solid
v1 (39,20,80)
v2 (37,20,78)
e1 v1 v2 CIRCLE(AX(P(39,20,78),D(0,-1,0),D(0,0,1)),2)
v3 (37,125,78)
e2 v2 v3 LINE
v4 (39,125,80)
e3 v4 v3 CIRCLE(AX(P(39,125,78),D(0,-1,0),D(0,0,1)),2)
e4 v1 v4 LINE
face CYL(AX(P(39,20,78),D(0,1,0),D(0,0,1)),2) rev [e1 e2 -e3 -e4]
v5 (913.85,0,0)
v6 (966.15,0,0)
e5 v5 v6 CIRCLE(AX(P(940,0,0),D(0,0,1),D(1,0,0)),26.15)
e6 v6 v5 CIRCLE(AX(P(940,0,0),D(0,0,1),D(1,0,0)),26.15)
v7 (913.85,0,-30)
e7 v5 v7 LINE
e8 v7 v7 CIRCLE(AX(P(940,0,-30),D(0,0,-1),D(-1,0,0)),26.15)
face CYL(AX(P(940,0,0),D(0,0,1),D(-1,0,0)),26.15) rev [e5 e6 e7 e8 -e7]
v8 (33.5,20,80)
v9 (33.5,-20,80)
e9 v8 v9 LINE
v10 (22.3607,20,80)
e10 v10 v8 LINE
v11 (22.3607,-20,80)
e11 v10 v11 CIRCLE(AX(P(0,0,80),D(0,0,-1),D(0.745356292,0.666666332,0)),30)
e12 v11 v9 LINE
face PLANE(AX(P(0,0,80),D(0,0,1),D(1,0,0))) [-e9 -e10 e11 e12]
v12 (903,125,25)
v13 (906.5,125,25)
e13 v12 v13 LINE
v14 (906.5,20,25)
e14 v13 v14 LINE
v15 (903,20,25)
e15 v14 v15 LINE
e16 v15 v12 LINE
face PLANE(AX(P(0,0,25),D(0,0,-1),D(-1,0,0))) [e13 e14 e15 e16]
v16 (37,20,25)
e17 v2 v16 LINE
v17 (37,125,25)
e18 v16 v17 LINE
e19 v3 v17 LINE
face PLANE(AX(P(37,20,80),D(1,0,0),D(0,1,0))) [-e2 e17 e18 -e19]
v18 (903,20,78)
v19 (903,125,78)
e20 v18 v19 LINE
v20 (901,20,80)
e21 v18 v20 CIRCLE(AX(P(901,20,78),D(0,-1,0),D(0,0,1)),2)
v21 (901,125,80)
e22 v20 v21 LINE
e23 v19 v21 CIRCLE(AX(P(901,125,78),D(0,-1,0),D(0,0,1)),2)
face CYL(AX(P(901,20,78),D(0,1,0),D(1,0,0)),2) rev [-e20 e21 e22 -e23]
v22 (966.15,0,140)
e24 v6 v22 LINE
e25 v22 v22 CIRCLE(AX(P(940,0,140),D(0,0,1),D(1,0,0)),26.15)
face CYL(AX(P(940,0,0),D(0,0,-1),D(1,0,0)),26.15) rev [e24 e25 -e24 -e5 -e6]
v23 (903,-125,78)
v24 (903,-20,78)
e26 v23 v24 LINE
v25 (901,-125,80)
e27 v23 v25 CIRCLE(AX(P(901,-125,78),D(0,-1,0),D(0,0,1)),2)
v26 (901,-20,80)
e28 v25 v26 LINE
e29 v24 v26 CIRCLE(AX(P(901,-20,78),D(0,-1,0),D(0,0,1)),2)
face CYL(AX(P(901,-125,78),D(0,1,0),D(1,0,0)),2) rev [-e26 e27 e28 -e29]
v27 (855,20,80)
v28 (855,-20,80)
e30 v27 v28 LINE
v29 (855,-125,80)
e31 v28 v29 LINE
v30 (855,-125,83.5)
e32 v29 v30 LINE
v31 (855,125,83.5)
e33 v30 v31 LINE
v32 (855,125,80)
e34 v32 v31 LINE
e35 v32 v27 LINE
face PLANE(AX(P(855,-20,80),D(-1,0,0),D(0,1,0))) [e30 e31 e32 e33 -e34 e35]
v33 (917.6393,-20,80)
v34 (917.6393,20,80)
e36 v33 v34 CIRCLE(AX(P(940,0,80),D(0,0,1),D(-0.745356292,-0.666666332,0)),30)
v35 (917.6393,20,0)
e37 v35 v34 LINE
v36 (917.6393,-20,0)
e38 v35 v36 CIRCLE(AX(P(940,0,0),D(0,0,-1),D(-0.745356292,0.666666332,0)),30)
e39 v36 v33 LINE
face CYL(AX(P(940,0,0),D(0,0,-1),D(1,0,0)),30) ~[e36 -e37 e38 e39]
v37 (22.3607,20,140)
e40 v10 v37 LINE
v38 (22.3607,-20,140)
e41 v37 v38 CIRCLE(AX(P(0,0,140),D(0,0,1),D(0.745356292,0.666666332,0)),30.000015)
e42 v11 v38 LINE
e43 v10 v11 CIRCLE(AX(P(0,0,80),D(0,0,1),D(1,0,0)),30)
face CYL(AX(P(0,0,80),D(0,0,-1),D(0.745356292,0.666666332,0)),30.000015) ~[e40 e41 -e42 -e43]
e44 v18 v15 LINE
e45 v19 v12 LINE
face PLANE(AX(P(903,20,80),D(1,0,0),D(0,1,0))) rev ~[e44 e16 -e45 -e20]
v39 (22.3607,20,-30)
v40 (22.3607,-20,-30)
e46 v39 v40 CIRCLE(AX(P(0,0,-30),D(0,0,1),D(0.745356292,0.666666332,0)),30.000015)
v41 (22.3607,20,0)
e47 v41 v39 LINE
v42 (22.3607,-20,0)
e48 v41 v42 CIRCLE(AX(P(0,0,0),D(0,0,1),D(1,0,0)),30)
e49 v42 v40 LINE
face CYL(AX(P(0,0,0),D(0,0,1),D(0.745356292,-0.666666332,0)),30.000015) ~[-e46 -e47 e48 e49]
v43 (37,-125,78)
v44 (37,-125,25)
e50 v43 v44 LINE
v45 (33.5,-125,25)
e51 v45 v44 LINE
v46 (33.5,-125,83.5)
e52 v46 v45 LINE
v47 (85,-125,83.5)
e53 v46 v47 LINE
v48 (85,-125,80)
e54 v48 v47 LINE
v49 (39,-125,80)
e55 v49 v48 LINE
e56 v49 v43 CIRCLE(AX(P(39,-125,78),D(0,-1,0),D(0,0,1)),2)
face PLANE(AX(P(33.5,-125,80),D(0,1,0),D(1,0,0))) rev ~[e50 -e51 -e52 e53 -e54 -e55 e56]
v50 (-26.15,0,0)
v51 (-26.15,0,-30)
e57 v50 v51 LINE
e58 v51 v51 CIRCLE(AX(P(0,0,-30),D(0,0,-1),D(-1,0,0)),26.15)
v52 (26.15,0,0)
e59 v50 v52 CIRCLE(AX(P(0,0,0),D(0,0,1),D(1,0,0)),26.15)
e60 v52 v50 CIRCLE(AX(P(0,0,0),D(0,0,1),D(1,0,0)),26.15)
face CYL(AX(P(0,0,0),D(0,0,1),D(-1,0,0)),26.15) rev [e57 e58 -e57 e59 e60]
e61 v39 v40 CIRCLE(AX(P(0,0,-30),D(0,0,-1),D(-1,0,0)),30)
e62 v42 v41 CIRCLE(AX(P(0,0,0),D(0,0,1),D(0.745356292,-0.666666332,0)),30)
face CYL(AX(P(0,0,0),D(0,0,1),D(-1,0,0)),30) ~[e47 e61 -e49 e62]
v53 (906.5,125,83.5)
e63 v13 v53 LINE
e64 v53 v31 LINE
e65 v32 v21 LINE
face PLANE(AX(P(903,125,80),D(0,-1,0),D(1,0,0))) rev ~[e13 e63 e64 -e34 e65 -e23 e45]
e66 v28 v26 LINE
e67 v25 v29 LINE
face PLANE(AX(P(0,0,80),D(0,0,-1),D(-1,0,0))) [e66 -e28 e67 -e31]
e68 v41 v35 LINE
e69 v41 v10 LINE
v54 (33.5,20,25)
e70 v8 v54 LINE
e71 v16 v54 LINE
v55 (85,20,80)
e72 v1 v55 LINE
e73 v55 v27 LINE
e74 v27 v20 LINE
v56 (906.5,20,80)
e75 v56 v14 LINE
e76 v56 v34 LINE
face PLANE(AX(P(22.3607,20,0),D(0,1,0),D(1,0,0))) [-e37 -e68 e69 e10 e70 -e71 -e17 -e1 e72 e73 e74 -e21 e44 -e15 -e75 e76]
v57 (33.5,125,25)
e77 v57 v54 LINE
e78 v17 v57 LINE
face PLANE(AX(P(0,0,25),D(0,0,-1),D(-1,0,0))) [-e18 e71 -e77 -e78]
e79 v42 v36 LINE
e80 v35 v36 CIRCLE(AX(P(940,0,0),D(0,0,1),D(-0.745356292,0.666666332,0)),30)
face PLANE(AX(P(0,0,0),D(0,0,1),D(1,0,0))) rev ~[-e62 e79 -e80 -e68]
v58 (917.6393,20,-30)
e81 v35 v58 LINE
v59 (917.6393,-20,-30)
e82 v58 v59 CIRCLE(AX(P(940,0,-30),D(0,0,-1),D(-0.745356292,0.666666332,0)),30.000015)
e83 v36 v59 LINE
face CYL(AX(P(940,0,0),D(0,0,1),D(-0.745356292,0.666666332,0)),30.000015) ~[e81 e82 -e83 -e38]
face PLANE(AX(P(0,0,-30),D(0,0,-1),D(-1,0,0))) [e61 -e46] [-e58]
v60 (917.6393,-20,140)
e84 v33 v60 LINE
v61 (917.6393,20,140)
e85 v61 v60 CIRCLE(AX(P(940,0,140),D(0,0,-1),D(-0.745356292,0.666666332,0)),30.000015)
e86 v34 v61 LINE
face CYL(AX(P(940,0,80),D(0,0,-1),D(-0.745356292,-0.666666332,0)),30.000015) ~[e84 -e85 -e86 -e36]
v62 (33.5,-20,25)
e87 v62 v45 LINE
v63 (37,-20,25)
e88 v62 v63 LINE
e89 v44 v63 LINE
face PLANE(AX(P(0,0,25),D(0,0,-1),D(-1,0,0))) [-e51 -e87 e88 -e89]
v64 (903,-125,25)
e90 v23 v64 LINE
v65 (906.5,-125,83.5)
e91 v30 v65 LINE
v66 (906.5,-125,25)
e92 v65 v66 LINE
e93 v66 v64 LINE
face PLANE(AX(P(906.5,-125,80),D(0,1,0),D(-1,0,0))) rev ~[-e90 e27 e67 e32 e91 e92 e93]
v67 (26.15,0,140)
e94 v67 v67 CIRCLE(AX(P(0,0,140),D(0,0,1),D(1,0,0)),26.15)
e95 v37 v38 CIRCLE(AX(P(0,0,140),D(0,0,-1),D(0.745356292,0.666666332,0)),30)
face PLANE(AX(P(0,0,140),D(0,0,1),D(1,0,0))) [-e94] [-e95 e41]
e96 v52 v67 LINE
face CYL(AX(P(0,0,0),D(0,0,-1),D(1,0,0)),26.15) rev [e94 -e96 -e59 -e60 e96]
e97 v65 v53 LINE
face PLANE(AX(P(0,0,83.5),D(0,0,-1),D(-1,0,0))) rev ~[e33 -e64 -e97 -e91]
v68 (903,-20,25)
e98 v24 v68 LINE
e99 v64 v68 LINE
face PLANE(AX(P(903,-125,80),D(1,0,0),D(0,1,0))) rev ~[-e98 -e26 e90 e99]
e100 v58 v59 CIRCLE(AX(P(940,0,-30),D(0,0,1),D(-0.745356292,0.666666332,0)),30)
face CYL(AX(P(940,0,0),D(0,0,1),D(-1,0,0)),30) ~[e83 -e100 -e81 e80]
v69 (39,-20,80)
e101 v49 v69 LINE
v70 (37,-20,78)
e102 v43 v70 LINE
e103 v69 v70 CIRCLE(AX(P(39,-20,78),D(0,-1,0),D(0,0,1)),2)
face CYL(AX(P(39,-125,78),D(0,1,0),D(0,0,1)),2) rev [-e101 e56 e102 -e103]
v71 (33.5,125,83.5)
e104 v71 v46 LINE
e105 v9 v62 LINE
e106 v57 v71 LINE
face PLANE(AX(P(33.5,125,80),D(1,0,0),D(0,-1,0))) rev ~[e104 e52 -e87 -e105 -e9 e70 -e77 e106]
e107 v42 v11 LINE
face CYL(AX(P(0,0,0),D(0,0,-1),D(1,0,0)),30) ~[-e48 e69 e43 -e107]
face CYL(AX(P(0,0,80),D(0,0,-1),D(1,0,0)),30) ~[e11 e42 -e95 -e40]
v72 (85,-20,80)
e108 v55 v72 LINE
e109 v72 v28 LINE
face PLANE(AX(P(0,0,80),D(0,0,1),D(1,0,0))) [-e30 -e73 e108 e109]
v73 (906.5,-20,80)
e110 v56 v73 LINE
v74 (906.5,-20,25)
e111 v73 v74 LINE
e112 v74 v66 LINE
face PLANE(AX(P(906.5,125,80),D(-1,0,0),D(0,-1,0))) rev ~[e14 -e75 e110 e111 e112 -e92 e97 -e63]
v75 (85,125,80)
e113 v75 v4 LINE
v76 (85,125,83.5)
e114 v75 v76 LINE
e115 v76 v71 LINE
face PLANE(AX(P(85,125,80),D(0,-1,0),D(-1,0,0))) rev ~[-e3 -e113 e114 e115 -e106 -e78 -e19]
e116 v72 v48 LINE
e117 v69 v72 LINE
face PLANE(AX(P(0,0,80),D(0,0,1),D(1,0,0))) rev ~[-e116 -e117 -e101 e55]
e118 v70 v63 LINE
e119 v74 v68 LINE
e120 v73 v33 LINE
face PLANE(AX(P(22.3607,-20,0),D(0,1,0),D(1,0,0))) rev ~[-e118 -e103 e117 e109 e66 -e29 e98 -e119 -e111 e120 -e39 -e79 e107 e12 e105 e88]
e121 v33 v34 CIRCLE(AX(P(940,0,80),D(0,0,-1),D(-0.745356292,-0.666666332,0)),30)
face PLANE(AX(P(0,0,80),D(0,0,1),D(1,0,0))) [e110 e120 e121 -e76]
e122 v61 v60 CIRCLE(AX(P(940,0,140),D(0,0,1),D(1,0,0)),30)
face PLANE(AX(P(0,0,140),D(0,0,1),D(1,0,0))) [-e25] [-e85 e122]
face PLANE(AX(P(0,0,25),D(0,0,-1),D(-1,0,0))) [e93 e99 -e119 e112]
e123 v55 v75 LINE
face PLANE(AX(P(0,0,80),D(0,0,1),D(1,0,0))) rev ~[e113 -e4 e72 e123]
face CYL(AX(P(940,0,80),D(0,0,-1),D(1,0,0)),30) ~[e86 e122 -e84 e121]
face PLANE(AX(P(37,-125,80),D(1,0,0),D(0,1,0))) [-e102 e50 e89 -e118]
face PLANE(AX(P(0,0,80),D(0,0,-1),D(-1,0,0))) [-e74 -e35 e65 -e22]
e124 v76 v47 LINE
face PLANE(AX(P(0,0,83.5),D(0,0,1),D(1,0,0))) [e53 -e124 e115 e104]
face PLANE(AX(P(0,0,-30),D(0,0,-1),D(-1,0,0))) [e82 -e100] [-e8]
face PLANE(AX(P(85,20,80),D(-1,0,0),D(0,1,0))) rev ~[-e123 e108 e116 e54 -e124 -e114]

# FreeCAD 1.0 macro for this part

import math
import FreeCAD as App
import Part
import Sketcher
from FreeCAD import Vector


def edges_at(feature, points):
    """Names of the edges that pass closest to the given points."""
    edges = feature.Shape.Edges
    near = lambda p: min(range(len(edges)), key=lambda i: edges[i].distToShape(Part.Vertex(*p))[0])
    return sorted({f"Edge{near(p) + 1}" for p in points})

doc = App.newDocument("Part")
body = doc.addObject("PartDesign::Body", "Body")

sketch1 = body.newObject("Sketcher::SketchObject", "Sketch")
sketch1.AttachmentSupport = (doc.getObject("XY_Plane"), [""])
sketch1.MapMode = "FlatFace"
sketch1.addGeometry([
    Part.ArcOfCircle(Part.Circle(Vector(0, 0, 0), Vector(0, 0, 1), 30), math.radians(41.810289), math.radians(318.189711)),
    Part.LineSegment(Vector(22.3607, -20, 0), Vector(917.6393, -20, 0)),
    Part.ArcOfCircle(Part.Circle(Vector(940, 0, 0), Vector(0, 0, 1), 30), math.radians(-138.189711), math.radians(138.189711)),
    Part.LineSegment(Vector(917.6393, 20, 0), Vector(22.3607, 20, 0)),
    Part.Circle(Vector(0, 0, 0), Vector(0, 0, 1), 26.15),
    Part.Circle(Vector(940, 0, 0), Vector(0, 0, 1), 26.15),
], False)
sketch1.addConstraint([
    Sketcher.Constraint("Coincident", 0, 2, 1, 1),
    Sketcher.Constraint("Coincident", 1, 2, 2, 1),
    Sketcher.Constraint("Coincident", 2, 2, 3, 1),
    Sketcher.Constraint("Coincident", 3, 2, 0, 1),
    Sketcher.Constraint("Horizontal", 1),
    Sketcher.Constraint("Horizontal", 3),
    Sketcher.Constraint("Coincident", 0, 3, -1, 1),
    Sketcher.Constraint("Coincident", 4, 3, -1, 1),
    Sketcher.Constraint("Coincident", 5, 3, 2, 3),
    Sketcher.Constraint("Equal", 0, 2),
    Sketcher.Constraint("Equal", 4, 5),
    Sketcher.Constraint("Symmetric", 1, 2, 2, 2, -1),
    Sketcher.Constraint("Radius", 0, 30.0),
    Sketcher.Constraint("Diameter", 4, 52.3),
    Sketcher.Constraint("DistanceX", -1, 1, 2, 3, 940.0),
    Sketcher.Constraint("DistanceY", 0, 2, -1, 1, 20.0),
])
pad1 = body.newObject("PartDesign::Pad", "Pad")
pad1.Profile = sketch1
pad1.Length = 80

sketch2 = body.newObject("Sketcher::SketchObject", "Sketch001")
sketch2.AttachmentSupport = (doc.getObject("XY_Plane"), [""])
sketch2.MapMode = "FlatFace"
sketch2.AttachmentOffset = App.Placement(Vector(0, 0, 80), App.Rotation())
sketch2.addGeometry([
    Part.Circle(Vector(0, 0, 0), Vector(0, 0, 1), 30.000015),
    Part.Circle(Vector(0, 0, 0), Vector(0, 0, 1), 26.15),
    Part.Circle(Vector(940, 0, 0), Vector(0, 0, 1), 30),
    Part.Circle(Vector(940, 0, 0), Vector(0, 0, 1), 26.15),
], False)
sketch2.addConstraint([
    Sketcher.Constraint("Coincident", 0, 3, -1, 1),
    Sketcher.Constraint("Coincident", 1, 3, -1, 1),
    Sketcher.Constraint("Coincident", 3, 3, 2, 3),
    Sketcher.Constraint("Equal", 0, 2),
    Sketcher.Constraint("Equal", 1, 3),
    Sketcher.Constraint("PointOnObject", 2, 3, -1),
    Sketcher.Constraint("Diameter", 0, 60.0),
    Sketcher.Constraint("Diameter", 1, 52.3),
    Sketcher.Constraint("DistanceX", -1, 1, 2, 3, 940.0),
])
pad2 = body.newObject("PartDesign::Pad", "Pad001")
pad2.Profile = sketch2
pad2.Length = 60

sketch3 = body.newObject("Sketcher::SketchObject", "Sketch002")
sketch3.AttachmentSupport = (doc.getObject("XY_Plane"), [""])
sketch3.MapMode = "FlatFace"
sketch3.addGeometry([
    Part.Circle(Vector(0, 0, 0), Vector(0, 0, 1), 30.000015),
    Part.Circle(Vector(0, 0, 0), Vector(0, 0, 1), 26.15),
    Part.Circle(Vector(940, 0, 0), Vector(0, 0, 1), 30),
    Part.Circle(Vector(940, 0, 0), Vector(0, 0, 1), 26.15),
], False)
sketch3.addConstraint([
    Sketcher.Constraint("Coincident", 0, 3, -1, 1),
    Sketcher.Constraint("Coincident", 1, 3, -1, 1),
    Sketcher.Constraint("Coincident", 3, 3, 2, 3),
    Sketcher.Constraint("Equal", 0, 2),
    Sketcher.Constraint("Equal", 1, 3),
    Sketcher.Constraint("PointOnObject", 2, 3, -1),
    Sketcher.Constraint("Diameter", 0, 60.0),
    Sketcher.Constraint("Diameter", 1, 52.3),
    Sketcher.Constraint("DistanceX", -1, 1, 2, 3, 940.0),
])
pad3 = body.newObject("PartDesign::Pad", "Pad002")
pad3.Profile = sketch3
pad3.Length = 30
pad3.Reversed = True

sketch4 = body.newObject("Sketcher::SketchObject", "Sketch003")
sketch4.AttachmentSupport = (doc.getObject("XY_Plane"), [""])
sketch4.MapMode = "FlatFace"
sketch4.AttachmentOffset = App.Placement(Vector(0, 0, 80), App.Rotation())
sketch4.addGeometry([
    Part.LineSegment(Vector(85, -125, 0), Vector(85, 125, 0)),
    Part.LineSegment(Vector(85, 125, 0), Vector(33.5, 125, 0)),
    Part.LineSegment(Vector(33.5, 125, 0), Vector(33.5, -125, 0)),
    Part.LineSegment(Vector(33.5, -125, 0), Vector(85, -125, 0)),
], False)
sketch4.addConstraint([
    Sketcher.Constraint("Coincident", 0, 2, 1, 1),
    Sketcher.Constraint("Coincident", 1, 2, 2, 1),
    Sketcher.Constraint("Coincident", 2, 2, 3, 1),
    Sketcher.Constraint("Coincident", 3, 2, 0, 1),
    Sketcher.Constraint("Vertical", 0),
    Sketcher.Constraint("Horizontal", 1),
    Sketcher.Constraint("Vertical", 2),
    Sketcher.Constraint("Horizontal", 3),
    Sketcher.Constraint("DistanceY", 0, 1, 0, 2, 250.0),
    Sketcher.Constraint("DistanceX", 1, 2, 1, 1, 51.5),
    Sketcher.Constraint("DistanceX", -1, 1, 0, 2, 85.0),
    Sketcher.Constraint("DistanceY", -1, 1, 0, 2, 125.0),
])
pad4 = body.newObject("PartDesign::Pad", "Pad003")
pad4.Profile = sketch4
pad4.Length = 3.5

sketch5 = body.newObject("Sketcher::SketchObject", "Sketch004")
sketch5.AttachmentSupport = (doc.getObject("XY_Plane"), [""])
sketch5.MapMode = "FlatFace"
sketch5.AttachmentOffset = App.Placement(Vector(0, 0, 80), App.Rotation())
sketch5.addGeometry([
    Part.LineSegment(Vector(33.5, -125, 0), Vector(33.5, -20, 0)),
    Part.LineSegment(Vector(33.5, -20, 0), Vector(37, -20, 0)),
    Part.LineSegment(Vector(37, -20, 0), Vector(37, -125, 0)),
    Part.LineSegment(Vector(37, -125, 0), Vector(33.5, -125, 0)),
    Part.LineSegment(Vector(37, 20, 0), Vector(33.5, 20, 0)),
    Part.LineSegment(Vector(33.5, 20, 0), Vector(33.5, 125, 0)),
    Part.LineSegment(Vector(33.5, 125, 0), Vector(37, 125, 0)),
    Part.LineSegment(Vector(37, 125, 0), Vector(37, 20, 0)),
], False)
sketch5.addConstraint([
    Sketcher.Constraint("Coincident", 0, 2, 1, 1),
    Sketcher.Constraint("Coincident", 1, 2, 2, 1),
    Sketcher.Constraint("Coincident", 2, 2, 3, 1),
    Sketcher.Constraint("Coincident", 3, 2, 0, 1),
    Sketcher.Constraint("Coincident", 4, 2, 5, 1),
    Sketcher.Constraint("Coincident", 5, 2, 6, 1),
    Sketcher.Constraint("Coincident", 6, 2, 7, 1),
    Sketcher.Constraint("Coincident", 7, 2, 4, 1),
    Sketcher.Constraint("Vertical", 0),
    Sketcher.Constraint("Horizontal", 1),
    Sketcher.Constraint("Vertical", 2),
    Sketcher.Constraint("Horizontal", 3),
    Sketcher.Constraint("Horizontal", 4),
    Sketcher.Constraint("Vertical", 5),
    Sketcher.Constraint("Horizontal", 6),
    Sketcher.Constraint("Vertical", 7),
    Sketcher.Constraint("Symmetric", 0, 2, 4, 2, -1),
    Sketcher.Constraint("Symmetric", 2, 2, 6, 2, -1),
    Sketcher.Constraint("DistanceX", 1, 1, 1, 2, 3.5),
    Sketcher.Constraint("DistanceY", 0, 1, 0, 2, 105.0),
    Sketcher.Constraint("DistanceY", 0, 2, -1, 1, 20.0),
    Sketcher.Constraint("DistanceX", -1, 1, 1, 2, 37.0),
])
pad5 = body.newObject("PartDesign::Pad", "Pad004")
pad5.Profile = sketch5
pad5.Length = 55
pad5.Reversed = True
doc.recompute()

fillet = body.newObject("PartDesign::Fillet", "Fillet")
fillet.Base = (pad5, edges_at(pad5, [(37, -72.5, 80), (37, 72.5, 80)]))
fillet.Radius = 2

sketch6 = body.newObject("Sketcher::SketchObject", "Sketch005")
sketch6.AttachmentSupport = (doc.getObject("XY_Plane"), [""])
sketch6.MapMode = "FlatFace"
sketch6.AttachmentOffset = App.Placement(Vector(0, 0, 80), App.Rotation())
sketch6.addGeometry([
    Part.LineSegment(Vector(855, 125, 0), Vector(906.5, 125, 0)),
    Part.LineSegment(Vector(906.5, 125, 0), Vector(906.5, -125, 0)),
    Part.LineSegment(Vector(906.5, -125, 0), Vector(855, -125, 0)),
    Part.LineSegment(Vector(855, -125, 0), Vector(855, 125, 0)),
], False)
sketch6.addConstraint([
    Sketcher.Constraint("Coincident", 0, 2, 1, 1),
    Sketcher.Constraint("Coincident", 1, 2, 2, 1),
    Sketcher.Constraint("Coincident", 2, 2, 3, 1),
    Sketcher.Constraint("Coincident", 3, 2, 0, 1),
    Sketcher.Constraint("Horizontal", 0),
    Sketcher.Constraint("Vertical", 1),
    Sketcher.Constraint("Horizontal", 2),
    Sketcher.Constraint("Vertical", 3),
    Sketcher.Constraint("DistanceY", 1, 2, 1, 1, 250.0),
    Sketcher.Constraint("DistanceX", 0, 1, 0, 2, 51.5),
    Sketcher.Constraint("DistanceY", -1, 1, 0, 2, 125.0),
    Sketcher.Constraint("DistanceX", -1, 1, 2, 2, 855.0),
])
pad6 = body.newObject("PartDesign::Pad", "Pad005")
pad6.Profile = sketch6
pad6.Length = 3.5

sketch7 = body.newObject("Sketcher::SketchObject", "Sketch006")
sketch7.AttachmentSupport = (doc.getObject("XY_Plane"), [""])
sketch7.MapMode = "FlatFace"
sketch7.AttachmentOffset = App.Placement(Vector(0, 0, 80), App.Rotation())
sketch7.addGeometry([
    Part.LineSegment(Vector(906.5, 20, 0), Vector(903, 20, 0)),
    Part.LineSegment(Vector(903, 20, 0), Vector(903, 125, 0)),
    Part.LineSegment(Vector(903, 125, 0), Vector(906.5, 125, 0)),
    Part.LineSegment(Vector(906.5, 125, 0), Vector(906.5, 20, 0)),
    Part.LineSegment(Vector(903, -125, 0), Vector(903, -20, 0)),
    Part.LineSegment(Vector(903, -20, 0), Vector(906.5, -20, 0)),
    Part.LineSegment(Vector(906.5, -20, 0), Vector(906.5, -125, 0)),
    Part.LineSegment(Vector(906.5, -125, 0), Vector(903, -125, 0)),
], False)
sketch7.addConstraint([
    Sketcher.Constraint("Coincident", 0, 2, 1, 1),
    Sketcher.Constraint("Coincident", 1, 2, 2, 1),
    Sketcher.Constraint("Coincident", 2, 2, 3, 1),
    Sketcher.Constraint("Coincident", 3, 2, 0, 1),
    Sketcher.Constraint("Coincident", 4, 2, 5, 1),
    Sketcher.Constraint("Coincident", 5, 2, 6, 1),
    Sketcher.Constraint("Coincident", 6, 2, 7, 1),
    Sketcher.Constraint("Coincident", 7, 2, 4, 1),
    Sketcher.Constraint("Horizontal", 0),
    Sketcher.Constraint("Vertical", 1),
    Sketcher.Constraint("Horizontal", 2),
    Sketcher.Constraint("Vertical", 3),
    Sketcher.Constraint("Vertical", 4),
    Sketcher.Constraint("Horizontal", 5),
    Sketcher.Constraint("Vertical", 6),
    Sketcher.Constraint("Horizontal", 7),
    Sketcher.Constraint("Symmetric", 0, 2, 4, 2, -1),
    Sketcher.Constraint("Symmetric", 2, 2, 6, 2, -1),
    Sketcher.Constraint("DistanceX", 0, 2, 0, 1, 3.5),
    Sketcher.Constraint("DistanceY", 1, 1, 1, 2, 105.0),
    Sketcher.Constraint("DistanceX", -1, 1, 0, 2, 903.0),
    Sketcher.Constraint("DistanceY", -1, 1, 0, 2, 20.0),
])
pad7 = body.newObject("PartDesign::Pad", "Pad006")
pad7.Profile = sketch7
pad7.Length = 55
pad7.Reversed = True
doc.recompute()

fillet2 = body.newObject("PartDesign::Fillet", "Fillet001")
fillet2.Base = (pad7, edges_at(pad7, [(903, -72.5, 80), (903, 72.5, 80)]))
fillet2.Radius = 2

doc.recompute()
